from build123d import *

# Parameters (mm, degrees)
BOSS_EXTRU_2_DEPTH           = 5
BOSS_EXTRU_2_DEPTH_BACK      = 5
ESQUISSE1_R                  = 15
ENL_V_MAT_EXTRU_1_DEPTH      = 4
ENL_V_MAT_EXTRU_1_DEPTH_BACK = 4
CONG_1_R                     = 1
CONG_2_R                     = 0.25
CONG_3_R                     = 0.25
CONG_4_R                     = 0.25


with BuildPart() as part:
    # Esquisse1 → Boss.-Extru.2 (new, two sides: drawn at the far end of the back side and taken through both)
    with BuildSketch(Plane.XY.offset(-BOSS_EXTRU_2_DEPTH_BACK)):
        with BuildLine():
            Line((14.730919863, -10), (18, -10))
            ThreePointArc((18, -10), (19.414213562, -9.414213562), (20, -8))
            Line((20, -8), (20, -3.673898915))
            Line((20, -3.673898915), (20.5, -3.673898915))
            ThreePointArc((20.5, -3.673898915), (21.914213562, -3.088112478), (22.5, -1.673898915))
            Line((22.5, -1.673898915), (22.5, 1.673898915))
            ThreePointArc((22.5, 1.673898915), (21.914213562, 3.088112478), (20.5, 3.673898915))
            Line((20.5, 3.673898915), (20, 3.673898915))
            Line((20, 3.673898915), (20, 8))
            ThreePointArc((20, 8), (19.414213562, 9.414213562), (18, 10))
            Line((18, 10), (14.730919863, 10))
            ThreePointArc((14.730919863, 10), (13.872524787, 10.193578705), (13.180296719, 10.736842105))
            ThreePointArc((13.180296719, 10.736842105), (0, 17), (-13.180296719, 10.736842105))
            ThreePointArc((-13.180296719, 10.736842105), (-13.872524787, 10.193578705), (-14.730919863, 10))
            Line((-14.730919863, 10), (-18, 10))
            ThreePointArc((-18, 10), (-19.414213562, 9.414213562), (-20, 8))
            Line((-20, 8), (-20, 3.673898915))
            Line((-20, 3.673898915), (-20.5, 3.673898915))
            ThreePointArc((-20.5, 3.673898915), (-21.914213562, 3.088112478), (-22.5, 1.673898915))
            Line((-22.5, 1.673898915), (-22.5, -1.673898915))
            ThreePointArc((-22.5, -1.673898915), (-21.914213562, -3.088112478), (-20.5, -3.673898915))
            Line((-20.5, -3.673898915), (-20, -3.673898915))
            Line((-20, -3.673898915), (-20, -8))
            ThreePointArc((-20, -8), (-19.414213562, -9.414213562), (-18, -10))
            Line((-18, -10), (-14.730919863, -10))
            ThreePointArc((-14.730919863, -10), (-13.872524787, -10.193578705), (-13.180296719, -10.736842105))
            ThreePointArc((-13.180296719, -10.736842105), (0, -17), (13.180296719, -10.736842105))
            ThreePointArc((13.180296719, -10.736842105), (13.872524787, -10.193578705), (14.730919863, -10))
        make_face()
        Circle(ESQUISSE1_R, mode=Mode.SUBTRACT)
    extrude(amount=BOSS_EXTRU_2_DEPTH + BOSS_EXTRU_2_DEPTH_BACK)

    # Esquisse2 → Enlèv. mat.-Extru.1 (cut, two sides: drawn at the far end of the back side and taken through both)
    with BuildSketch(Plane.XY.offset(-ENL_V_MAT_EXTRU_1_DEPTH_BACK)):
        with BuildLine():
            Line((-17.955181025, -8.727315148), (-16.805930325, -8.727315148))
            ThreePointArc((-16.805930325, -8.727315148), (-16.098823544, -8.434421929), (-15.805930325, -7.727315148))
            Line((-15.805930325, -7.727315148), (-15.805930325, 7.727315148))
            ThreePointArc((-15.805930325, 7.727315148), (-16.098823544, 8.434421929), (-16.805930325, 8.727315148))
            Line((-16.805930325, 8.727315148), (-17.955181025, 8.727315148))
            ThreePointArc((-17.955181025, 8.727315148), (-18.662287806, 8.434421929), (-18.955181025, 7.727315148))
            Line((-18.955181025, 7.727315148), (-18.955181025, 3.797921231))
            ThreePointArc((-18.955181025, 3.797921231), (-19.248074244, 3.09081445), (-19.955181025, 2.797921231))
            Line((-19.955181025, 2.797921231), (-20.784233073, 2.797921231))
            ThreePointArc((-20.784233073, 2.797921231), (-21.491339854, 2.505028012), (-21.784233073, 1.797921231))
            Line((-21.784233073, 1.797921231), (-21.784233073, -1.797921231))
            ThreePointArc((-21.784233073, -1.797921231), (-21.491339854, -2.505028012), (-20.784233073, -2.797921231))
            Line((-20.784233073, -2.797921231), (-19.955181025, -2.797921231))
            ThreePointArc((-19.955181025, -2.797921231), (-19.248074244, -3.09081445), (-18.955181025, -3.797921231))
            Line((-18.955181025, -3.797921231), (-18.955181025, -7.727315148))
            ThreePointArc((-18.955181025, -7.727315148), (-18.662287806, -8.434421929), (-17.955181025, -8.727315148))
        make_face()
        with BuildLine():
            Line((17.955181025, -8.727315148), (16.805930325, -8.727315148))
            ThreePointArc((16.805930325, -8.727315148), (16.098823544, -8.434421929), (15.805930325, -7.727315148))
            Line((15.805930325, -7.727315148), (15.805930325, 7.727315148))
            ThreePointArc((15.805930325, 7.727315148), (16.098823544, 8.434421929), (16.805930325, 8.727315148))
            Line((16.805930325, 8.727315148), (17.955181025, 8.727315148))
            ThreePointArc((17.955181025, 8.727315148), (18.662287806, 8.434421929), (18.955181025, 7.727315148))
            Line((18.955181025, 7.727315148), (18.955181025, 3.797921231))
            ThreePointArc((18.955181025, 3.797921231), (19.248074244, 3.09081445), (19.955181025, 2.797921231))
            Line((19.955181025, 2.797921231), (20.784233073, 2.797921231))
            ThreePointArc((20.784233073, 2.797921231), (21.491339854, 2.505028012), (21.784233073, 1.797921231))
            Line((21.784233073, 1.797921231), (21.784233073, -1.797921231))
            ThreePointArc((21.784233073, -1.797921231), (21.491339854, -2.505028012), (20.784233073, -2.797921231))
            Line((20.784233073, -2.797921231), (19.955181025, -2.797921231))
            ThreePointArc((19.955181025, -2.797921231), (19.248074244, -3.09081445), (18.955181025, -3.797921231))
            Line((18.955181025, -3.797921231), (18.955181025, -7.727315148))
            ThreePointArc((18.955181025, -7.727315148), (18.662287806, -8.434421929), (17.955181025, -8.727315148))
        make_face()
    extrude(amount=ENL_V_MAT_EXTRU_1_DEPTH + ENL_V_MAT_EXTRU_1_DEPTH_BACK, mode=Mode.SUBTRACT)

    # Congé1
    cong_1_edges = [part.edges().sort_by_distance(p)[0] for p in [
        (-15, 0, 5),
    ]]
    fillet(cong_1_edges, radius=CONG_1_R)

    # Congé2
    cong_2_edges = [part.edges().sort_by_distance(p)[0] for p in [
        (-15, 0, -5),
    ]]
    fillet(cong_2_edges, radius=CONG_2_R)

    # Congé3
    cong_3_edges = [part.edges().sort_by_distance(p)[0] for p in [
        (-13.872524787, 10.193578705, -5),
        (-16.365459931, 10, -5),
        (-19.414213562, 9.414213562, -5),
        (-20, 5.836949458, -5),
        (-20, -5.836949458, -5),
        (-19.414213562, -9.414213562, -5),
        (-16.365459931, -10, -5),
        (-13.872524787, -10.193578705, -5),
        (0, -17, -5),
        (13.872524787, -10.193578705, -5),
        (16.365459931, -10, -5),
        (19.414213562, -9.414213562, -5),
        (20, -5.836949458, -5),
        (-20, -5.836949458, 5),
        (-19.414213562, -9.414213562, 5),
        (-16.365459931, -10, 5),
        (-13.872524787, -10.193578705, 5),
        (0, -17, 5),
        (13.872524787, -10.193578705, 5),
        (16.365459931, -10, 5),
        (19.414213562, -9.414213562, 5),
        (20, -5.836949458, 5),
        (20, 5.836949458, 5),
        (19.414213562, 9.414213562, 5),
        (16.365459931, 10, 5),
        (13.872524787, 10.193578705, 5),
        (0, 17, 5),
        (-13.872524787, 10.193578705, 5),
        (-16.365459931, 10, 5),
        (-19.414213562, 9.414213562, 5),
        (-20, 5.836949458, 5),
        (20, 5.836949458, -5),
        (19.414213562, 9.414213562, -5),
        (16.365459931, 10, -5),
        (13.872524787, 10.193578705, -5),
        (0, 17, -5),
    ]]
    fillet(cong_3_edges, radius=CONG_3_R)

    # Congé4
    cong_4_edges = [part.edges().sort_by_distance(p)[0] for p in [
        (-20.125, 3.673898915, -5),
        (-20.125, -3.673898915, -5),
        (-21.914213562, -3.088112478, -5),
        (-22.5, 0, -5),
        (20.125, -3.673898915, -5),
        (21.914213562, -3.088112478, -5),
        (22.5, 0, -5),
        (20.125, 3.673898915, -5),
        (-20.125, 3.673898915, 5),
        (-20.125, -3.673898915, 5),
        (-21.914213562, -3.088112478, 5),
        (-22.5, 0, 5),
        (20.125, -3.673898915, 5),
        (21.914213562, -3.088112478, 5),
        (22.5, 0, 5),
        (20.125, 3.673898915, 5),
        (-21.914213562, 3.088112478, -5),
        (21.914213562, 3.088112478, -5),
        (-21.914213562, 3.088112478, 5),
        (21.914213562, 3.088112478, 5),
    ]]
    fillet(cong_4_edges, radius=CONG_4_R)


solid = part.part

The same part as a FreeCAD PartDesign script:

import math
import FreeCAD as App
import Part
import Sketcher
from FreeCAD import Vector


def edges_at(feature, points):
    """Names of the edges that pass closest to the given points."""
    edges = feature.Shape.Edges
    near = lambda p: min(range(len(edges)), key=lambda i: edges[i].distToShape(Part.Vertex(*p))[0])
    return sorted({f"Edge{near(p) + 1}" for p in points})

doc = App.newDocument("Part")
body = doc.addObject("PartDesign::Body", "Body")

sketch1 = body.newObject("Sketcher::SketchObject", "Sketch")
sketch1.AttachmentSupport = (doc.getObject("XY_Plane"), [""])
sketch1.MapMode = "FlatFace"
sketch1.addGeometry([
    Part.LineSegment(Vector(14.73092, -10, 0), Vector(18, -10, 0)),
    Part.ArcOfCircle(Part.Circle(Vector(18, -8, 0), Vector(0, 0, 1), 2), math.radians(-90), math.radians(0)),
    Part.LineSegment(Vector(20, -8, 0), Vector(20, -3.673899, 0)),
    Part.LineSegment(Vector(20, -3.673899, 0), Vector(20.5, -3.673899, 0)),
    Part.ArcOfCircle(Part.Circle(Vector(20.5, -1.673899, 0), Vector(0, 0, 1), 2), math.radians(-90), math.radians(0)),
    Part.LineSegment(Vector(22.5, -1.673899, 0), Vector(22.5, 1.673899, 0)),
    Part.ArcOfCircle(Part.Circle(Vector(20.5, 1.673899, 0), Vector(0, 0, 1), 2), math.radians(0), math.radians(90)),
    Part.LineSegment(Vector(20.5, 3.673899, 0), Vector(20, 3.673899, 0)),
    Part.LineSegment(Vector(20, 3.673899, 0), Vector(20, 8, 0)),
    Part.ArcOfCircle(Part.Circle(Vector(18, 8, 0), Vector(0, 0, 1), 2), math.radians(0), math.radians(90)),
    Part.LineSegment(Vector(18, 10, 0), Vector(14.73092, 10, 0)),
    Part.ArcOfCircle(Part.Circle(Vector(14.73092, 12, 0), Vector(0, 0, 1), 2), math.radians(-140.833289), math.radians(-90)),
    Part.ArcOfCircle(Part.Circle(Vector(0, 0, 0), Vector(0, 0, 1), 17), math.radians(39.166711), math.radians(140.833289)),
    Part.ArcOfCircle(Part.Circle(Vector(-14.73092, 12, 0), Vector(0, 0, 1), 2), math.radians(-90), math.radians(-39.166711)),
    Part.LineSegment(Vector(-14.73092, 10, 0), Vector(-18, 10, 0)),
    Part.ArcOfCircle(Part.Circle(Vector(-18, 8, 0), Vector(0, 0, 1), 2), math.radians(90), math.radians(180)),
    Part.LineSegment(Vector(-20, 8, 0), Vector(-20, 3.673899, 0)),
    Part.LineSegment(Vector(-20, 3.673899, 0), Vector(-20.5, 3.673899, 0)),
    Part.ArcOfCircle(Part.Circle(Vector(-20.5, 1.673899, 0), Vector(0, 0, 1), 2), math.radians(90), math.radians(180)),
    Part.LineSegment(Vector(-22.5, 1.673899, 0), Vector(-22.5, -1.673899, 0)),
    Part.ArcOfCircle(Part.Circle(Vector(-20.5, -1.673899, 0), Vector(0, 0, 1), 2), math.radians(180), math.radians(270)),
    Part.LineSegment(Vector(-20.5, -3.673899, 0), Vector(-20, -3.673899, 0)),
    Part.LineSegment(Vector(-20, -3.673899, 0), Vector(-20, -8, 0)),
    Part.ArcOfCircle(Part.Circle(Vector(-18, -8, 0), Vector(0, 0, 1), 2), math.radians(-180), math.radians(-90)),
    Part.LineSegment(Vector(-18, -10, 0), Vector(-14.73092, -10, 0)),
    Part.ArcOfCircle(Part.Circle(Vector(-14.73092, -12, 0), Vector(0, 0, 1), 2), math.radians(39.166711), math.radians(90)),
    Part.ArcOfCircle(Part.Circle(Vector(0, 0, 0), Vector(0, 0, 1), 17), math.radians(-140.833289), math.radians(-39.166711)),
    Part.ArcOfCircle(Part.Circle(Vector(14.73092, -12, 0), Vector(0, 0, 1), 2), math.radians(90), math.radians(140.833289)),
    Part.Circle(Vector(0, 0, 0), Vector(0, 0, 1), 15),
], False)
sketch1.addConstraint([
    Sketcher.Constraint("Tangent", 0, 2, 1, 1),
    Sketcher.Constraint("Tangent", 1, 2, 2, 1),
    Sketcher.Constraint("Coincident", 2, 2, 3, 1),
    Sketcher.Constraint("Tangent", 3, 2, 4, 1),
    Sketcher.Constraint("Tangent", 4, 2, 5, 1),
    Sketcher.Constraint("Tangent", 5, 2, 6, 1),
    Sketcher.Constraint("Tangent", 6, 2, 7, 1),
    Sketcher.Constraint("Coincident", 7, 2, 8, 1),
    Sketcher.Constraint("Tangent", 8, 2, 9, 1),
    Sketcher.Constraint("Tangent", 9, 2, 10, 1),
    Sketcher.Constraint("Tangent", 10, 2, 11, 2),
    Sketcher.Constraint("Tangent", 11, 1, 12, 1),
    Sketcher.Constraint("Tangent", 12, 2, 13, 2),
    Sketcher.Constraint("Tangent", 13, 1, 14, 1),
    Sketcher.Constraint("Tangent", 14, 2, 15, 1),
    Sketcher.Constraint("Tangent", 15, 2, 16, 1),
    Sketcher.Constraint("Coincident", 16, 2, 17, 1),
    Sketcher.Constraint("Tangent", 17, 2, 18, 1),
    Sketcher.Constraint("Tangent", 18, 2, 19, 1),
    Sketcher.Constraint("Tangent", 19, 2, 20, 1),
    Sketcher.Constraint("Tangent", 20, 2, 21, 1),
    Sketcher.Constraint("Coincident", 21, 2, 22, 1),
    Sketcher.Constraint("Tangent", 22, 2, 23, 1),
    Sketcher.Constraint("Tangent", 23, 2, 24, 1),
    Sketcher.Constraint("Tangent", 24, 2, 25, 2),
    Sketcher.Constraint("Tangent", 25, 1, 26, 1),
    Sketcher.Constraint("Tangent", 26, 2, 27, 2),
    Sketcher.Constraint("Tangent", 27, 1, 0, 1),
    Sketcher.Constraint("Horizontal", 0),
    Sketcher.Constraint("Vertical", 2),
    Sketcher.Constraint("Horizontal", 3),
    Sketcher.Constraint("Vertical", 5),
    Sketcher.Constraint("Horizontal", 7),
    Sketcher.Constraint("Vertical", 8),
    Sketcher.Constraint("Horizontal", 10),
    Sketcher.Constraint("Horizontal", 14),
    Sketcher.Constraint("Vertical", 16),
    Sketcher.Constraint("Horizontal", 17),
    Sketcher.Constraint("Vertical", 19),
    Sketcher.Constraint("Horizontal", 21),
    Sketcher.Constraint("Vertical", 22),
    Sketcher.Constraint("Horizontal", 24),
    Sketcher.Constraint("Coincident", 12, 3, -1, 1),
    Sketcher.Constraint("Coincident", 26, 3, -1, 1),
    Sketcher.Constraint("Coincident", 28, 3, -1, 1),
    Sketcher.Constraint("Equal", 1, 4),
    Sketcher.Constraint("Equal", 4, 6),
    Sketcher.Constraint("Equal", 6, 9),
    Sketcher.Constraint("Equal", 9, 11),
    Sketcher.Constraint("Equal", 11, 13),
    Sketcher.Constraint("Equal", 13, 15),
    Sketcher.Constraint("Equal", 15, 18),
    Sketcher.Constraint("Equal", 18, 20),
    Sketcher.Constraint("Equal", 20, 23),
    Sketcher.Constraint("Equal", 23, 25),
    Sketcher.Constraint("Equal", 12, 26),
    Sketcher.Constraint("Equal", 25, 27),
    Sketcher.Constraint("Symmetric", 1, 3, 15, 3, -1, 1),
    Sketcher.Constraint("Symmetric", 4, 3, 18, 3, -1, 1),
    Sketcher.Constraint("Symmetric", 9, 3, 23, 3, -1, 1),
    Sketcher.Constraint("Symmetric", 9, 3, 15, 3, -2),
    Sketcher.Constraint("Horizontal", 6, 3, 18, 3),
    Sketcher.Constraint("Horizontal", 4, 3, 20, 3),
    Sketcher.Constraint("Diameter", 28, 30.0),
    Sketcher.Constraint("Radius", 1, 2.0),
    Sketcher.Constraint("Radius", 12, 17.0),
    Sketcher.Constraint("DistanceX", 3, 1, 3, 2, 0.5),
    Sketcher.Constraint("DistanceX", -1, 1, 1, 3, 18.0),
    Sketcher.Constraint("DistanceY", 1, 3, -1, 1, 8.0),
    Sketcher.Constraint("DistanceY", 2, 1, 2, 2, 4.326101),
])
pad1 = body.newObject("PartDesign::Pad", "Pad")
pad1.Profile = sketch1
pad1.Type = "TwoLengths"
pad1.Length = 5
pad1.Length2 = 5

sketch2 = body.newObject("Sketcher::SketchObject", "Sketch001")
sketch2.AttachmentSupport = (doc.getObject("XY_Plane"), [""])
sketch2.MapMode = "FlatFace"
sketch2.addGeometry([
    Part.LineSegment(Vector(-17.955181, -8.727315, 0), Vector(-16.80593, -8.727315, 0)),
    Part.ArcOfCircle(Part.Circle(Vector(-16.80593, -7.727315, 0), Vector(0, 0, 1), 1), math.radians(-90), math.radians(0)),
    Part.LineSegment(Vector(-15.80593, -7.727315, 0), Vector(-15.80593, 7.727315, 0)),
    Part.ArcOfCircle(Part.Circle(Vector(-16.80593, 7.727315, 0), Vector(0, 0, 1), 1), math.radians(0), math.radians(90)),
    Part.LineSegment(Vector(-16.80593, 8.727315, 0), Vector(-17.955181, 8.727315, 0)),
    Part.ArcOfCircle(Part.Circle(Vector(-17.955181, 7.727315, 0), Vector(0, 0, 1), 1), math.radians(90), math.radians(180)),
    Part.LineSegment(Vector(-18.955181, 7.727315, 0), Vector(-18.955181, 3.797921, 0)),
    Part.ArcOfCircle(Part.Circle(Vector(-19.955181, 3.797921, 0), Vector(0, 0, 1), 1), math.radians(-90), math.radians(0)),
    Part.LineSegment(Vector(-19.955181, 2.797921, 0), Vector(-20.784233, 2.797921, 0)),
    Part.ArcOfCircle(Part.Circle(Vector(-20.784233, 1.797921, 0), Vector(0, 0, 1), 1), math.radians(90), math.radians(180)),
    Part.LineSegment(Vector(-21.784233, 1.797921, 0), Vector(-21.784233, -1.797921, 0)),
    Part.ArcOfCircle(Part.Circle(Vector(-20.784233, -1.797921, 0), Vector(0, 0, 1), 1), math.radians(-180), math.radians(-90)),
    Part.LineSegment(Vector(-20.784233, -2.797921, 0), Vector(-19.955181, -2.797921, 0)),
    Part.ArcOfCircle(Part.Circle(Vector(-19.955181, -3.797921, 0), Vector(0, 0, 1), 1), math.radians(0), math.radians(90)),
    Part.LineSegment(Vector(-18.955181, -3.797921, 0), Vector(-18.955181, -7.727315, 0)),
    Part.ArcOfCircle(Part.Circle(Vector(-17.955181, -7.727315, 0), Vector(0, 0, 1), 1), math.radians(-180), math.radians(-90)),
    Part.LineSegment(Vector(16.80593, -8.727315, 0), Vector(17.955181, -8.727315, 0)),
    Part.ArcOfCircle(Part.Circle(Vector(17.955181, -7.727315, 0), Vector(0, 0, 1), 1), math.radians(-90), math.radians(0)),
    Part.LineSegment(Vector(18.955181, -7.727315, 0), Vector(18.955181, -3.797921, 0)),
    Part.ArcOfCircle(Part.Circle(Vector(19.955181, -3.797921, 0), Vector(0, 0, 1), 1), math.radians(90), math.radians(180)),
    Part.LineSegment(Vector(19.955181, -2.797921, 0), Vector(20.784233, -2.797921, 0)),
    Part.ArcOfCircle(Part.Circle(Vector(20.784233, -1.797921, 0), Vector(0, 0, 1), 1), math.radians(-90), math.radians(0)),
    Part.LineSegment(Vector(21.784233, -1.797921, 0), Vector(21.784233, 1.797921, 0)),
    Part.ArcOfCircle(Part.Circle(Vector(20.784233, 1.797921, 0), Vector(0, 0, 1), 1), math.radians(0), math.radians(90)),
    Part.LineSegment(Vector(20.784233, 2.797921, 0), Vector(19.955181, 2.797921, 0)),
    Part.ArcOfCircle(Part.Circle(Vector(19.955181, 3.797921, 0), Vector(0, 0, 1), 1), math.radians(-180), math.radians(-90)),
    Part.LineSegment(Vector(18.955181, 3.797921, 0), Vector(18.955181, 7.727315, 0)),
    Part.ArcOfCircle(Part.Circle(Vector(17.955181, 7.727315, 0), Vector(0, 0, 1), 1), math.radians(0), math.radians(90)),
    Part.LineSegment(Vector(17.955181, 8.727315, 0), Vector(16.80593, 8.727315, 0)),
    Part.ArcOfCircle(Part.Circle(Vector(16.80593, 7.727315, 0), Vector(0, 0, 1), 1), math.radians(90), math.radians(180)),
    Part.LineSegment(Vector(15.80593, 7.727315, 0), Vector(15.80593, -7.727315, 0)),
    Part.ArcOfCircle(Part.Circle(Vector(16.80593, -7.727315, 0), Vector(0, 0, 1), 1), math.radians(-180), math.radians(-90)),
], False)
sketch2.addConstraint([
    Sketcher.Constraint("Tangent", 0, 2, 1, 1),
    Sketcher.Constraint("Tangent", 1, 2, 2, 1),
    Sketcher.Constraint("Tangent", 2, 2, 3, 1),
    Sketcher.Constraint("Tangent", 3, 2, 4, 1),
    Sketcher.Constraint("Tangent", 4, 2, 5, 1),
    Sketcher.Constraint("Tangent", 5, 2, 6, 1),
    Sketcher.Constraint("Tangent", 6, 2, 7, 2),
    Sketcher.Constraint("Tangent", 7, 1, 8, 1),
    Sketcher.Constraint("Tangent", 8, 2, 9, 1),
    Sketcher.Constraint("Tangent", 9, 2, 10, 1),
    Sketcher.Constraint("Tangent", 10, 2, 11, 1),
    Sketcher.Constraint("Tangent", 11, 2, 12, 1),
    Sketcher.Constraint("Tangent", 12, 2, 13, 2),
    Sketcher.Constraint("Tangent", 13, 1, 14, 1),
    Sketcher.Constraint("Tangent", 14, 2, 15, 1),
    Sketcher.Constraint("Tangent", 15, 2, 0, 1),
    Sketcher.Constraint("Tangent", 16, 2, 17, 1),
    Sketcher.Constraint("Tangent", 17, 2, 18, 1),
    Sketcher.Constraint("Tangent", 18, 2, 19, 2),
    Sketcher.Constraint("Tangent", 19, 1, 20, 1),
    Sketcher.Constraint("Tangent", 20, 2, 21, 1),
    Sketcher.Constraint("Tangent", 21, 2, 22, 1),
    Sketcher.Constraint("Tangent", 22, 2, 23, 1),
    Sketcher.Constraint("Tangent", 23, 2, 24, 1),
    Sketcher.Constraint("Tangent", 24, 2, 25, 2),
    Sketcher.Constraint("Tangent", 25, 1, 26, 1),
    Sketcher.Constraint("Tangent", 26, 2, 27, 1),
    Sketcher.Constraint("Tangent", 27, 2, 28, 1),
    Sketcher.Constraint("Tangent", 28, 2, 29, 1),
    Sketcher.Constraint("Tangent", 29, 2, 30, 1),
    Sketcher.Constraint("Tangent", 30, 2, 31, 1),
    Sketcher.Constraint("Tangent", 31, 2, 16, 1),
    Sketcher.Constraint("Horizontal", 0),
    Sketcher.Constraint("Vertical", 2),
    Sketcher.Constraint("Horizontal", 4),
    Sketcher.Constraint("Vertical", 6),
    Sketcher.Constraint("Horizontal", 8),
    Sketcher.Constraint("Vertical", 10),
    Sketcher.Constraint("Horizontal", 12),
    Sketcher.Constraint("Vertical", 14),
    Sketcher.Constraint("Horizontal", 16),
    Sketcher.Constraint("Vertical", 18),
    Sketcher.Constraint("Horizontal", 20),
    Sketcher.Constraint("Vertical", 22),
    Sketcher.Constraint("Horizontal", 24),
    Sketcher.Constraint("Vertical", 26),
    Sketcher.Constraint("Horizontal", 28),
    Sketcher.Constraint("Vertical", 30),
    Sketcher.Constraint("Equal", 1, 3),
    Sketcher.Constraint("Equal", 3, 5),
    Sketcher.Constraint("Equal", 5, 7),
    Sketcher.Constraint("Equal", 7, 9),
    Sketcher.Constraint("Equal", 9, 11),
    Sketcher.Constraint("Equal", 11, 13),
    Sketcher.Constraint("Equal", 13, 15),
    Sketcher.Constraint("Equal", 15, 17),
    Sketcher.Constraint("Equal", 17, 19),
    Sketcher.Constraint("Equal", 19, 21),
    Sketcher.Constraint("Equal", 21, 23),
    Sketcher.Constraint("Equal", 23, 25),
    Sketcher.Constraint("Equal", 25, 27),
    Sketcher.Constraint("Equal", 27, 29),
    Sketcher.Constraint("Equal", 29, 31),
    Sketcher.Constraint("Symmetric", 5, 3, 17, 3, -1, 1),
    Sketcher.Constraint("Symmetric", 9, 3, 21, 3, -1, 1),
    Sketcher.Constraint("Symmetric", 13, 3, 25, 3, -1, 1),
    Sketcher.Constraint("Symmetric", 1, 3, 29, 3, -1, 1),
    Sketcher.Constraint("Symmetric", 15, 3, 17, 3, -2),
    Sketcher.Constraint("Horizontal", 13, 3, 19, 3),
    Sketcher.Constraint("Radius", 1, 1.0),
    Sketcher.Constraint("DistanceX", 0, 1, 0, 2, 1.149251),
    Sketcher.Constraint("DistanceY", 2, 1, 2, 2, 15.45463),
    Sketcher.Constraint("DistanceX", 8, 2, 8, 1, 0.829052),
    Sketcher.Constraint("DistanceY", 6, 2, 6, 1, 3.929394),
    Sketcher.Constraint("DistanceX", 1, 3, -1, 1, 16.80593),
])
pocket1 = body.newObject("PartDesign::Pocket", "Pocket")
pocket1.Profile = sketch2
pocket1.Type = "TwoLengths"
pocket1.Length = 4
pocket1.Length2 = 4
pocket1.Reversed = True
doc.recompute()

fillet = body.newObject("PartDesign::Fillet", "Fillet")
fillet.Base = (pocket1, edges_at(pocket1, [(-15, 0, 5)]))
fillet.Radius = 1
doc.recompute()

fillet2 = body.newObject("PartDesign::Fillet", "Fillet001")
fillet2.Base = (fillet, edges_at(fillet, [(-15, 0, -5)]))
fillet2.Radius = 0.25
doc.recompute()

fillet3 = body.newObject("PartDesign::Fillet", "Fillet002")
fillet3.Base = (fillet2, edges_at(fillet2, [
    (-13.873, 10.194, -5),
    (-16.365, 10, -5),
    (-19.414, 9.414, -5),
    (-20, 5.837, -5),
    (-20, -5.837, -5),
    (-19.414, -9.414, -5),
    (-16.365, -10, -5),
    (-13.873, -10.194, -5),
    (0, -17, -5),
    (13.873, -10.194, -5),
    (16.365, -10, -5),
    (19.414, -9.414, -5),
    (20, -5.837, -5),
    (-20, -5.837, 5),
    (-19.414, -9.414, 5),
    (-16.365, -10, 5),
    (-13.873, -10.194, 5),
    (0, -17, 5),
    (13.873, -10.194, 5),
    (16.365, -10, 5),
    (19.414, -9.414, 5),
    (20, -5.837, 5),
    (20, 5.837, 5),
    (19.414, 9.414, 5),
    (16.365, 10, 5),
    (13.873, 10.194, 5),
    (0, 17, 5),
    (-13.873, 10.194, 5),
    (-16.365, 10, 5),
    (-19.414, 9.414, 5),
    (-20, 5.837, 5),
    (20, 5.837, -5),
    (19.414, 9.414, -5),
    (16.365, 10, -5),
    (13.873, 10.194, -5),
    (0, 17, -5),
]))
fillet3.Radius = 0.25
doc.recompute()

fillet4 = body.newObject("PartDesign::Fillet", "Fillet003")
fillet4.Base = (fillet3, edges_at(fillet3, [
    (-20.125, 3.674, -5),
    (-20.125, -3.674, -5),
    (-21.914, -3.088, -5),
    (-22.5, 0, -5),
    (20.125, -3.674, -5),
    (21.914, -3.088, -5),
    (22.5, 0, -5),
    (20.125, 3.674, -5),
    (-20.125, 3.674, 5),
    (-20.125, -3.674, 5),
    (-21.914, -3.088, 5),
    (-22.5, 0, 5),
    (20.125, -3.674, 5),
    (21.914, -3.088, 5),
    (22.5, 0, 5),
    (20.125, 3.674, 5),
    (-21.914, 3.088, -5),
    (21.914, 3.088, -5),
    (-21.914, 3.088, 5),
    (21.914, 3.088, 5),
]))
fillet4.Radius = 0.25

doc.recompute()
